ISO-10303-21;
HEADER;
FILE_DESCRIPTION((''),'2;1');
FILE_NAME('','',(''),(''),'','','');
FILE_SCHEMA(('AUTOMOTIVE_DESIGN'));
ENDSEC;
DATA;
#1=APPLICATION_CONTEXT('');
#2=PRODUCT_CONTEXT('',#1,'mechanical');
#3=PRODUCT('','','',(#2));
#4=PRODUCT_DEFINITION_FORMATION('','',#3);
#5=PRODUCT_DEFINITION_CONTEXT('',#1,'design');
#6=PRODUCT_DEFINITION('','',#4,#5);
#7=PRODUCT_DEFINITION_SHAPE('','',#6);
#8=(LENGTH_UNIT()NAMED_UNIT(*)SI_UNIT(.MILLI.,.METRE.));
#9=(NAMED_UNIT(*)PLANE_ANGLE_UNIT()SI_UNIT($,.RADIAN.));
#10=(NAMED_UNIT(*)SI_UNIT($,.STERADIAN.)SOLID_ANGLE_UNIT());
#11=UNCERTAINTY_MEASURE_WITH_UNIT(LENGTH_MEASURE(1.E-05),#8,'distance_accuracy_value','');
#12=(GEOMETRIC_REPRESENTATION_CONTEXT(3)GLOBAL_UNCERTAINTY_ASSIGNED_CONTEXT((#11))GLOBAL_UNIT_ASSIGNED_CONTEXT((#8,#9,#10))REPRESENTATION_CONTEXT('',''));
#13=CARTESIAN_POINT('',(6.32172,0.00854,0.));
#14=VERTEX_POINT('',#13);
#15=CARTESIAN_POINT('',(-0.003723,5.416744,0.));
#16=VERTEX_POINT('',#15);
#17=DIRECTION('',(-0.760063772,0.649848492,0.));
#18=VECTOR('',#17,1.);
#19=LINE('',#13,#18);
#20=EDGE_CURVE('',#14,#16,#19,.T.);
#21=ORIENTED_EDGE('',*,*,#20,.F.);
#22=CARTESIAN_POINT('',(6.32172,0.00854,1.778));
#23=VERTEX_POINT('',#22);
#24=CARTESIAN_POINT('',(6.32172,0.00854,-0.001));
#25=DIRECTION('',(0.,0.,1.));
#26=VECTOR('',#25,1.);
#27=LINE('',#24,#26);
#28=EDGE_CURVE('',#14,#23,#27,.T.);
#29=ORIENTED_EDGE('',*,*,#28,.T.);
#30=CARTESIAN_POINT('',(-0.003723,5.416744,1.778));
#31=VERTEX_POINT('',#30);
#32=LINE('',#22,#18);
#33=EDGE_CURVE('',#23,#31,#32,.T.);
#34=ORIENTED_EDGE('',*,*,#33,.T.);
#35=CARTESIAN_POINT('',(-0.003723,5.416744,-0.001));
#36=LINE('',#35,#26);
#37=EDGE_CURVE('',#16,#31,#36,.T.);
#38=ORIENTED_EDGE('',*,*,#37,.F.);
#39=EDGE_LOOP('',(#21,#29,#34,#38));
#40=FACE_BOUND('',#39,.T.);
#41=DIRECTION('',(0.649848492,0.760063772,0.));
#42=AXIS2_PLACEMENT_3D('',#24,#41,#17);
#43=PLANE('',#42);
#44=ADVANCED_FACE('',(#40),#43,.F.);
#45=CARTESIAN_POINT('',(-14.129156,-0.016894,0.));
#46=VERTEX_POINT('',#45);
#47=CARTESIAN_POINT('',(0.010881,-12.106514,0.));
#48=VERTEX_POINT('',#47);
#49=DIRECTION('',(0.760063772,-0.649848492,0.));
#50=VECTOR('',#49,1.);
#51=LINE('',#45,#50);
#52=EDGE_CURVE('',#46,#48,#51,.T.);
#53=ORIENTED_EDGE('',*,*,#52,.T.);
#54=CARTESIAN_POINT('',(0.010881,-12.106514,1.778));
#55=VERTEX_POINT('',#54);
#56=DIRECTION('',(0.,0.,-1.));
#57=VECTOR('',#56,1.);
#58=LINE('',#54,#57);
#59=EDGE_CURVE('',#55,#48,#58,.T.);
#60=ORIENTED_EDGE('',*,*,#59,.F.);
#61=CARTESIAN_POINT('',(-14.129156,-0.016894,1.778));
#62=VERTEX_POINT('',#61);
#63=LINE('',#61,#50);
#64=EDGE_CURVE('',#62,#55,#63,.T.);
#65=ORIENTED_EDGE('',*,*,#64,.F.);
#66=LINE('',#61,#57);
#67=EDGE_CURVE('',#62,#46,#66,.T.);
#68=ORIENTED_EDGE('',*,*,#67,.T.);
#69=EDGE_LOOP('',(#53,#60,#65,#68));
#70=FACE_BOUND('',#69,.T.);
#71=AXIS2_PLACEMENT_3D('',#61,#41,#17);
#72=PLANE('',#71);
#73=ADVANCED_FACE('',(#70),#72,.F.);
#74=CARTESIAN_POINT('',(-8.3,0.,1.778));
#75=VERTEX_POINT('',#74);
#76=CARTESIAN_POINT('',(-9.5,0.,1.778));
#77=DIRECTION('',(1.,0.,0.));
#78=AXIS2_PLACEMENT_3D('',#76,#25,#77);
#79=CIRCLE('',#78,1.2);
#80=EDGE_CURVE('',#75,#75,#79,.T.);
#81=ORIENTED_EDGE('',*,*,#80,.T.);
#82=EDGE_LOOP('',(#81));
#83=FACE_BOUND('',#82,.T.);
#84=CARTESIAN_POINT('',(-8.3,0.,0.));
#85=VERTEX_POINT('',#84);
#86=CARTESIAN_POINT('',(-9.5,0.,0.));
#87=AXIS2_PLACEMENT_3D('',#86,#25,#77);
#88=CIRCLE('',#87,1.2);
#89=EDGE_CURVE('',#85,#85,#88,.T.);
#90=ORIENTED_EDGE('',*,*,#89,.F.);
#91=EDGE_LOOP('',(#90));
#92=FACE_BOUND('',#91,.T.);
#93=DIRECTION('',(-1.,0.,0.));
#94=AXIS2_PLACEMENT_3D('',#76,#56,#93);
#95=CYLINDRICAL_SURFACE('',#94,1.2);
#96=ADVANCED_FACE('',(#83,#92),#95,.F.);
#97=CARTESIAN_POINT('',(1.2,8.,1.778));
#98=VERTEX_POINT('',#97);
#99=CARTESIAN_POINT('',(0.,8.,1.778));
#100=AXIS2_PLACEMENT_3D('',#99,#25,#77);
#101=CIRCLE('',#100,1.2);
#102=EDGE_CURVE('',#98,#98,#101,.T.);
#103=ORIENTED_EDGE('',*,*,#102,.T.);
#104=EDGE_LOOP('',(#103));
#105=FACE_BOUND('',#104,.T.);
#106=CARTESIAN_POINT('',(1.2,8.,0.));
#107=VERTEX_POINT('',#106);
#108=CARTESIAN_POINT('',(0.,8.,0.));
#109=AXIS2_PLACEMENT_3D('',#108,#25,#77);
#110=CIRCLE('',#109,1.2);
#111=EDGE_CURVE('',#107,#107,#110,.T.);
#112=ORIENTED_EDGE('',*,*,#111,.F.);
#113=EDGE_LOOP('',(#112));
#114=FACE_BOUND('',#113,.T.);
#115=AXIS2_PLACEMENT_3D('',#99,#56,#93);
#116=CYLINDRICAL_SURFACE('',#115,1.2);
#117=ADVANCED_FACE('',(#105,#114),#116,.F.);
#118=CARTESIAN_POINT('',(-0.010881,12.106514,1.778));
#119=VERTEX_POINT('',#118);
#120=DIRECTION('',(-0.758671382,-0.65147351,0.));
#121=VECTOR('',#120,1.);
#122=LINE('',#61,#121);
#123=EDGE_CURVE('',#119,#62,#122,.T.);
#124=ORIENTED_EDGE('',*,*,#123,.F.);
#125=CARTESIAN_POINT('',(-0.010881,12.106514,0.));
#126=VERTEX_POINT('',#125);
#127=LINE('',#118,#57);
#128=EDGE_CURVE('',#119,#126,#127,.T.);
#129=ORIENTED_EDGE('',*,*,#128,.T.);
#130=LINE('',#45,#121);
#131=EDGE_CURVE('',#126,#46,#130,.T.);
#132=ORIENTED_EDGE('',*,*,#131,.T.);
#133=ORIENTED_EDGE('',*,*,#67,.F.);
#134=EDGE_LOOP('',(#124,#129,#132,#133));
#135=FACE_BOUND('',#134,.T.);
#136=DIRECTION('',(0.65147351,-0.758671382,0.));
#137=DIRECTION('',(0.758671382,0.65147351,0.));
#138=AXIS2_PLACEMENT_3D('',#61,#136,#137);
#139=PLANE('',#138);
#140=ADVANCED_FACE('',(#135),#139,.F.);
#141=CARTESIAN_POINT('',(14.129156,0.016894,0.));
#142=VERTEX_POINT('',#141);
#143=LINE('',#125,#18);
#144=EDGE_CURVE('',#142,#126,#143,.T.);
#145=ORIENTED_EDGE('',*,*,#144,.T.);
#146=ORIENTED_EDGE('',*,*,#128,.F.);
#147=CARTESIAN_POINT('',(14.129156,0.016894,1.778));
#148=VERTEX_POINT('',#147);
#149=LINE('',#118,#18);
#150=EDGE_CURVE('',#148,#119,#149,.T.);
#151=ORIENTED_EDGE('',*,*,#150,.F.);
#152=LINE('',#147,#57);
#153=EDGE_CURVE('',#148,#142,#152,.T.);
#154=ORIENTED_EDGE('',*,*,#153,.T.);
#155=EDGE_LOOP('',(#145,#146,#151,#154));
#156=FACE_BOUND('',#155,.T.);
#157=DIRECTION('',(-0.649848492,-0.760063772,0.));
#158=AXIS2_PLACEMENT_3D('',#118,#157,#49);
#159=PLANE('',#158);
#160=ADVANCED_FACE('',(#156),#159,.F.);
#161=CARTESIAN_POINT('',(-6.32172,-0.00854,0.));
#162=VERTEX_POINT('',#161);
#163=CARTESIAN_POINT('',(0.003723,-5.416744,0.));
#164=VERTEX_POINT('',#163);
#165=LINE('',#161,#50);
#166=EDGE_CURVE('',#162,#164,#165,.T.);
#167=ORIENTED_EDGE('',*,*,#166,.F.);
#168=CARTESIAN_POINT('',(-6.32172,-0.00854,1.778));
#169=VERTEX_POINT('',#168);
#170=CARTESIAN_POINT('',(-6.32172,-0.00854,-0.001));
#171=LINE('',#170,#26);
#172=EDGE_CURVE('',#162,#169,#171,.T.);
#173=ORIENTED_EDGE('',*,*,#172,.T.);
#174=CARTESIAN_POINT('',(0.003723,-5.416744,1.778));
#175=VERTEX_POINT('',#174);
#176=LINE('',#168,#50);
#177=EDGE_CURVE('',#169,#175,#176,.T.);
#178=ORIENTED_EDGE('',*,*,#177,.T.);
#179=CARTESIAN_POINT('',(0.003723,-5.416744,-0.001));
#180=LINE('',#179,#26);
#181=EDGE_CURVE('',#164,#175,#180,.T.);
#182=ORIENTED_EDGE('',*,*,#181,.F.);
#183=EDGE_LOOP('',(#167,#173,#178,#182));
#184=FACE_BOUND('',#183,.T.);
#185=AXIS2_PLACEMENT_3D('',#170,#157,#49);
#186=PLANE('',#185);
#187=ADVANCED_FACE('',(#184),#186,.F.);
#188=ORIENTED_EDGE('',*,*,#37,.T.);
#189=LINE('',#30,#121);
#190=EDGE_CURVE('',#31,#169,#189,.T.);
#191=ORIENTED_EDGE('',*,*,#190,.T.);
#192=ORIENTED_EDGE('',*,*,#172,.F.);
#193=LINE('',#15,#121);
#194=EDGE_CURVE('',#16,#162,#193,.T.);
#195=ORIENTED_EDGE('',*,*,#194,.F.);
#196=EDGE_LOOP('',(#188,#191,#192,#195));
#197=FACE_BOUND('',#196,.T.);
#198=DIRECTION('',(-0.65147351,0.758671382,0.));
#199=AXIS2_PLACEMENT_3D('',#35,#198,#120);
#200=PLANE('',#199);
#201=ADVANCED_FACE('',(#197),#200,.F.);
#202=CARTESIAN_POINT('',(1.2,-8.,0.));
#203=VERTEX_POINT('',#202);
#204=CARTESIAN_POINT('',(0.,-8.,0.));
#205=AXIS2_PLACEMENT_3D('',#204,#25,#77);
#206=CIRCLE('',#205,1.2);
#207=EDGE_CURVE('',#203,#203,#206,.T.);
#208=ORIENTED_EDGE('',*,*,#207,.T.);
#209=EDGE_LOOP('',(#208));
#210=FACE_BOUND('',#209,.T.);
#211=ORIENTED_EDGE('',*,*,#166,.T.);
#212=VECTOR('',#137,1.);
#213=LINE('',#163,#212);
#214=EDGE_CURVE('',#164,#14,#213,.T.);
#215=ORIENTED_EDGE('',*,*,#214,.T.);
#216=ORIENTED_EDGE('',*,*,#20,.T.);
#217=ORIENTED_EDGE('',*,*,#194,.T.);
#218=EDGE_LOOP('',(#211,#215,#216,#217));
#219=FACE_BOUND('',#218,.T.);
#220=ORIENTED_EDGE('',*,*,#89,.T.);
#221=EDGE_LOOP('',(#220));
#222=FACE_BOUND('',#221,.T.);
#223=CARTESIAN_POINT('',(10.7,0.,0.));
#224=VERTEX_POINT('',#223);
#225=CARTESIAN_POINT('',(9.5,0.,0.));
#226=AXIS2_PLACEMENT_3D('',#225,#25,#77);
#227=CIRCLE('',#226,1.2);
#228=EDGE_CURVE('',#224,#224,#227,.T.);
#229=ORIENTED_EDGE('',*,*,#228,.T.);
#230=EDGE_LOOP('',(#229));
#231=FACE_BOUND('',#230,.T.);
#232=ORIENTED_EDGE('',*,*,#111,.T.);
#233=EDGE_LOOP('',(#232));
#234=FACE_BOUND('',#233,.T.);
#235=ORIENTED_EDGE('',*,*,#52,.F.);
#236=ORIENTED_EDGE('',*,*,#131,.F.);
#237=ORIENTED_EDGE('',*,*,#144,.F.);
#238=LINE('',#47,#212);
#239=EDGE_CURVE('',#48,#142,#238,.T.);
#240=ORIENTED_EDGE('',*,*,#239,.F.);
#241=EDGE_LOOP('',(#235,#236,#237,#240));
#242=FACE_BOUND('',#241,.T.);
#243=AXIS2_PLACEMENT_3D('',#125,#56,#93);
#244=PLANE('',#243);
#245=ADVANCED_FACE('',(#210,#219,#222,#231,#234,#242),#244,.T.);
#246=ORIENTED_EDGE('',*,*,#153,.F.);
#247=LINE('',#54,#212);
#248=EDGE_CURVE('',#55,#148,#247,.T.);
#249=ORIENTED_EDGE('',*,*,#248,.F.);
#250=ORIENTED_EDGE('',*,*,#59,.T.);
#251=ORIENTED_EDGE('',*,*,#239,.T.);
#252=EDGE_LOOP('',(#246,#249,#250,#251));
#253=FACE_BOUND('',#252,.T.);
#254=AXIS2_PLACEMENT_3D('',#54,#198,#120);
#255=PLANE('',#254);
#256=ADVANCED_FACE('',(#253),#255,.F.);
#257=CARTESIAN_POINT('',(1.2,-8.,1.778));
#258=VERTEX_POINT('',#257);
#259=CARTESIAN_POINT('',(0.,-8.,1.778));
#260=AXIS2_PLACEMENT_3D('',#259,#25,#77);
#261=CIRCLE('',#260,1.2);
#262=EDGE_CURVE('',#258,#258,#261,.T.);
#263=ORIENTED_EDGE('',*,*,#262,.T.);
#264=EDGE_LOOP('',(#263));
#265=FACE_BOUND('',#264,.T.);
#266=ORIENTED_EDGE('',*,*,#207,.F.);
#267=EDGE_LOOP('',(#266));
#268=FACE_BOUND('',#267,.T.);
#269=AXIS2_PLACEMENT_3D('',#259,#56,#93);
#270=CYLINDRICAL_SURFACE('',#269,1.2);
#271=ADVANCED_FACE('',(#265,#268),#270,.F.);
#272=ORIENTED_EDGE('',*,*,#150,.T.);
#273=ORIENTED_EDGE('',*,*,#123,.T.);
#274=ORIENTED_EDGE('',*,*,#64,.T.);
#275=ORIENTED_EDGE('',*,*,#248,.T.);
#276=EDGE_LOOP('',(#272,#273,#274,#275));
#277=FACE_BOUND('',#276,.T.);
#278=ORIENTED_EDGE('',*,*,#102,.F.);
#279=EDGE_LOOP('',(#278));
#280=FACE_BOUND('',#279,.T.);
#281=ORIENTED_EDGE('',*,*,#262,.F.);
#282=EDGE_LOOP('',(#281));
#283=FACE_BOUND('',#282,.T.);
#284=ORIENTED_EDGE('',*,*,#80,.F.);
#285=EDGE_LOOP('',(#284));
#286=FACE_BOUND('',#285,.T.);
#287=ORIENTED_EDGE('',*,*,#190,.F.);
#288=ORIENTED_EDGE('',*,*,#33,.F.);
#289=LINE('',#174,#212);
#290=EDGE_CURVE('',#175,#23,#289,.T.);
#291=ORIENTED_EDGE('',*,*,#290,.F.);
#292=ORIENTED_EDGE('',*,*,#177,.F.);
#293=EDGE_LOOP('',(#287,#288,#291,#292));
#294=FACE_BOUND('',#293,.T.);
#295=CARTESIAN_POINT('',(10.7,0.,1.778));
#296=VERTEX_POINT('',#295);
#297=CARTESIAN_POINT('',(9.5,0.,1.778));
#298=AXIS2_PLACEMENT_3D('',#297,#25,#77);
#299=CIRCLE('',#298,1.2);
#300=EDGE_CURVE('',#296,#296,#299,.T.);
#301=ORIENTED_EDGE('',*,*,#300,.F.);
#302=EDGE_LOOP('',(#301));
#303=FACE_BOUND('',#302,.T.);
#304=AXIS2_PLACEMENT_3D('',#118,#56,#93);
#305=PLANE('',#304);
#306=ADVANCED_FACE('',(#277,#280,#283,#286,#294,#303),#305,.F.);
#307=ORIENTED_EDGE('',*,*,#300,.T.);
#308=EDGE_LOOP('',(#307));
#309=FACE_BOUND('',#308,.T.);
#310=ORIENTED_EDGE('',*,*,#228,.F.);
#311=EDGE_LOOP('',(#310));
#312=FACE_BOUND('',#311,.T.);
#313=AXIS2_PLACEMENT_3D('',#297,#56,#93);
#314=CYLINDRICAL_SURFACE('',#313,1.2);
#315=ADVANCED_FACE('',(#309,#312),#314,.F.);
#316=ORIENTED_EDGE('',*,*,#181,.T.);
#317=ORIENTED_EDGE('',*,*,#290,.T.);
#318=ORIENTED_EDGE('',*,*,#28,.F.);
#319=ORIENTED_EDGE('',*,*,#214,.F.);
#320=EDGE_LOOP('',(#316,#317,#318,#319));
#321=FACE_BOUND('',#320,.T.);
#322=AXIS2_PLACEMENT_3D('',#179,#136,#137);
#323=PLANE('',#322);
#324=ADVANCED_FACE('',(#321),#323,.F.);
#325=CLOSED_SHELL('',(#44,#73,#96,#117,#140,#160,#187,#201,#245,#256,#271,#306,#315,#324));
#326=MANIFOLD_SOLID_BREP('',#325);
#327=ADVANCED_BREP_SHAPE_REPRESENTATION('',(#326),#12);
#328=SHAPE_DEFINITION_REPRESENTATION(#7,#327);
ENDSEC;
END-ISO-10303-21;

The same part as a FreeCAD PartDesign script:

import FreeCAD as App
import Part
import Sketcher
from FreeCAD import Vector


def add_polygon(sketch, points):
    """Adds a closed chain of lines whose ends are joined by coincident constraints."""
    first, n = sketch.GeometryCount, len(points)
    for a, b in zip(points, points[1:] + points[:1]):
        sketch.addGeometry(Part.LineSegment(App.Vector(*a, 0), App.Vector(*b, 0)), False)
    for i in range(n):
        sketch.addConstraint(Sketcher.Constraint("Coincident", first + i, 2, first + (i + 1) % n, 1))

doc = App.newDocument("Part")
body = doc.addObject("PartDesign::Body", "Body")

# Sketch on XY plane
sketch1 = doc.addObject("Sketcher::SketchObject", "Sketch")
body.addObject(sketch1)
sketch1.AttachmentSupport = (doc.XY_Plane, [""])
sketch1.MapMode = "FlatFace"
add_polygon(sketch1, [(-14.1, 0), (0, -12.1), (14.1, 0), (0, 12.1)])  # lines 0-3
sketch1.addGeometry(Part.Circle(Vector(0, -8, 0), Vector(0, 0, 1), 1.2), False)  # 4
sketch1.addGeometry(Part.Circle(Vector(-9.5, 0, 0), Vector(0, 0, 1), 1.2), False)  # 5
sketch1.addGeometry(Part.Circle(Vector(9.5, 0, 0), Vector(0, 0, 1), 1.2), False)  # 6
sketch1.addGeometry(Part.Circle(Vector(0, 8, 0), Vector(0, 0, 1), 1.2), False)  # 7
sketch1.addConstraint([
    Sketcher.Constraint("Equal", 4, 5),
    Sketcher.Constraint("Equal", 5, 6),
    Sketcher.Constraint("Equal", 6, 7),
    Sketcher.Constraint("Symmetric", 5, 3, 6, 3, -1, 1),
    Sketcher.Constraint("Symmetric", 4, 3, 7, 3, -1, 1),
    Sketcher.Constraint("Symmetric", 0, 2, 2, 2, -1, 1),
    Sketcher.Constraint("Symmetric", 1, 2, 3, 2, -1, 1),
    Sketcher.Constraint("PointOnObject", 4, 3, -2),
    Sketcher.Constraint("PointOnObject", 5, 3, -1),
    Sketcher.Constraint("Diameter", 4, 2.4),
    Sketcher.Constraint("DistanceY", 4, 3, -1, 1, 8.0),
    Sketcher.Constraint("DistanceX", 5, 3, 6, 3, 19.0),
    Sketcher.Constraint("Distance", 0, 18.603751),
    Sketcher.Constraint("Distance", 1, 18.60921),
    Sketcher.Constraint("DistanceX", -1, 1, 0, 2, 0.010881),
    Sketcher.Constraint("DistanceY", 1, 2, 2, 2, 12.08962),
])
pad1 = doc.addObject("PartDesign::Pad", "Pad")
body.addObject(pad1)
pad1.Profile = sketch1
pad1.Length = 1.778

# Sketch on XY plane
sketch2 = doc.addObject("Sketcher::SketchObject", "Sketch001")
body.addObject(sketch2)
sketch2.AttachmentSupport = (doc.XY_Plane, [""])
sketch2.MapMode = "FlatFace"
sketch2.AttachmentOffset = App.Placement(Vector(0, 0, 1.778), App.Rotation())
add_polygon(sketch2, [(0, 5), (-6, 0), (0, -5), (6, 0)])  # lines 0-3
sketch2.addConstraint([
    Sketcher.Constraint("Symmetric", 0, 2, 2, 2, -1, 1),
    Sketcher.Constraint("Symmetric", 1, 2, 3, 2, -1, 1),
    Sketcher.Constraint("DistanceX", 0, 2, -1, 1, 6.32172),
    Sketcher.Constraint("DistanceY", 0, 2, -1, 1, 0.00854),
    Sketcher.Constraint("DistanceY", 1, 2, 3, 2, 10.833488),
    Sketcher.Constraint("Distance", 0, 8.327712),
])
pocket1 = doc.addObject("PartDesign::Pocket", "Pocket")
body.addObject(pocket1)
pocket1.Profile = sketch2
pocket1.Type = "UpToFirst"

doc.recompute()
